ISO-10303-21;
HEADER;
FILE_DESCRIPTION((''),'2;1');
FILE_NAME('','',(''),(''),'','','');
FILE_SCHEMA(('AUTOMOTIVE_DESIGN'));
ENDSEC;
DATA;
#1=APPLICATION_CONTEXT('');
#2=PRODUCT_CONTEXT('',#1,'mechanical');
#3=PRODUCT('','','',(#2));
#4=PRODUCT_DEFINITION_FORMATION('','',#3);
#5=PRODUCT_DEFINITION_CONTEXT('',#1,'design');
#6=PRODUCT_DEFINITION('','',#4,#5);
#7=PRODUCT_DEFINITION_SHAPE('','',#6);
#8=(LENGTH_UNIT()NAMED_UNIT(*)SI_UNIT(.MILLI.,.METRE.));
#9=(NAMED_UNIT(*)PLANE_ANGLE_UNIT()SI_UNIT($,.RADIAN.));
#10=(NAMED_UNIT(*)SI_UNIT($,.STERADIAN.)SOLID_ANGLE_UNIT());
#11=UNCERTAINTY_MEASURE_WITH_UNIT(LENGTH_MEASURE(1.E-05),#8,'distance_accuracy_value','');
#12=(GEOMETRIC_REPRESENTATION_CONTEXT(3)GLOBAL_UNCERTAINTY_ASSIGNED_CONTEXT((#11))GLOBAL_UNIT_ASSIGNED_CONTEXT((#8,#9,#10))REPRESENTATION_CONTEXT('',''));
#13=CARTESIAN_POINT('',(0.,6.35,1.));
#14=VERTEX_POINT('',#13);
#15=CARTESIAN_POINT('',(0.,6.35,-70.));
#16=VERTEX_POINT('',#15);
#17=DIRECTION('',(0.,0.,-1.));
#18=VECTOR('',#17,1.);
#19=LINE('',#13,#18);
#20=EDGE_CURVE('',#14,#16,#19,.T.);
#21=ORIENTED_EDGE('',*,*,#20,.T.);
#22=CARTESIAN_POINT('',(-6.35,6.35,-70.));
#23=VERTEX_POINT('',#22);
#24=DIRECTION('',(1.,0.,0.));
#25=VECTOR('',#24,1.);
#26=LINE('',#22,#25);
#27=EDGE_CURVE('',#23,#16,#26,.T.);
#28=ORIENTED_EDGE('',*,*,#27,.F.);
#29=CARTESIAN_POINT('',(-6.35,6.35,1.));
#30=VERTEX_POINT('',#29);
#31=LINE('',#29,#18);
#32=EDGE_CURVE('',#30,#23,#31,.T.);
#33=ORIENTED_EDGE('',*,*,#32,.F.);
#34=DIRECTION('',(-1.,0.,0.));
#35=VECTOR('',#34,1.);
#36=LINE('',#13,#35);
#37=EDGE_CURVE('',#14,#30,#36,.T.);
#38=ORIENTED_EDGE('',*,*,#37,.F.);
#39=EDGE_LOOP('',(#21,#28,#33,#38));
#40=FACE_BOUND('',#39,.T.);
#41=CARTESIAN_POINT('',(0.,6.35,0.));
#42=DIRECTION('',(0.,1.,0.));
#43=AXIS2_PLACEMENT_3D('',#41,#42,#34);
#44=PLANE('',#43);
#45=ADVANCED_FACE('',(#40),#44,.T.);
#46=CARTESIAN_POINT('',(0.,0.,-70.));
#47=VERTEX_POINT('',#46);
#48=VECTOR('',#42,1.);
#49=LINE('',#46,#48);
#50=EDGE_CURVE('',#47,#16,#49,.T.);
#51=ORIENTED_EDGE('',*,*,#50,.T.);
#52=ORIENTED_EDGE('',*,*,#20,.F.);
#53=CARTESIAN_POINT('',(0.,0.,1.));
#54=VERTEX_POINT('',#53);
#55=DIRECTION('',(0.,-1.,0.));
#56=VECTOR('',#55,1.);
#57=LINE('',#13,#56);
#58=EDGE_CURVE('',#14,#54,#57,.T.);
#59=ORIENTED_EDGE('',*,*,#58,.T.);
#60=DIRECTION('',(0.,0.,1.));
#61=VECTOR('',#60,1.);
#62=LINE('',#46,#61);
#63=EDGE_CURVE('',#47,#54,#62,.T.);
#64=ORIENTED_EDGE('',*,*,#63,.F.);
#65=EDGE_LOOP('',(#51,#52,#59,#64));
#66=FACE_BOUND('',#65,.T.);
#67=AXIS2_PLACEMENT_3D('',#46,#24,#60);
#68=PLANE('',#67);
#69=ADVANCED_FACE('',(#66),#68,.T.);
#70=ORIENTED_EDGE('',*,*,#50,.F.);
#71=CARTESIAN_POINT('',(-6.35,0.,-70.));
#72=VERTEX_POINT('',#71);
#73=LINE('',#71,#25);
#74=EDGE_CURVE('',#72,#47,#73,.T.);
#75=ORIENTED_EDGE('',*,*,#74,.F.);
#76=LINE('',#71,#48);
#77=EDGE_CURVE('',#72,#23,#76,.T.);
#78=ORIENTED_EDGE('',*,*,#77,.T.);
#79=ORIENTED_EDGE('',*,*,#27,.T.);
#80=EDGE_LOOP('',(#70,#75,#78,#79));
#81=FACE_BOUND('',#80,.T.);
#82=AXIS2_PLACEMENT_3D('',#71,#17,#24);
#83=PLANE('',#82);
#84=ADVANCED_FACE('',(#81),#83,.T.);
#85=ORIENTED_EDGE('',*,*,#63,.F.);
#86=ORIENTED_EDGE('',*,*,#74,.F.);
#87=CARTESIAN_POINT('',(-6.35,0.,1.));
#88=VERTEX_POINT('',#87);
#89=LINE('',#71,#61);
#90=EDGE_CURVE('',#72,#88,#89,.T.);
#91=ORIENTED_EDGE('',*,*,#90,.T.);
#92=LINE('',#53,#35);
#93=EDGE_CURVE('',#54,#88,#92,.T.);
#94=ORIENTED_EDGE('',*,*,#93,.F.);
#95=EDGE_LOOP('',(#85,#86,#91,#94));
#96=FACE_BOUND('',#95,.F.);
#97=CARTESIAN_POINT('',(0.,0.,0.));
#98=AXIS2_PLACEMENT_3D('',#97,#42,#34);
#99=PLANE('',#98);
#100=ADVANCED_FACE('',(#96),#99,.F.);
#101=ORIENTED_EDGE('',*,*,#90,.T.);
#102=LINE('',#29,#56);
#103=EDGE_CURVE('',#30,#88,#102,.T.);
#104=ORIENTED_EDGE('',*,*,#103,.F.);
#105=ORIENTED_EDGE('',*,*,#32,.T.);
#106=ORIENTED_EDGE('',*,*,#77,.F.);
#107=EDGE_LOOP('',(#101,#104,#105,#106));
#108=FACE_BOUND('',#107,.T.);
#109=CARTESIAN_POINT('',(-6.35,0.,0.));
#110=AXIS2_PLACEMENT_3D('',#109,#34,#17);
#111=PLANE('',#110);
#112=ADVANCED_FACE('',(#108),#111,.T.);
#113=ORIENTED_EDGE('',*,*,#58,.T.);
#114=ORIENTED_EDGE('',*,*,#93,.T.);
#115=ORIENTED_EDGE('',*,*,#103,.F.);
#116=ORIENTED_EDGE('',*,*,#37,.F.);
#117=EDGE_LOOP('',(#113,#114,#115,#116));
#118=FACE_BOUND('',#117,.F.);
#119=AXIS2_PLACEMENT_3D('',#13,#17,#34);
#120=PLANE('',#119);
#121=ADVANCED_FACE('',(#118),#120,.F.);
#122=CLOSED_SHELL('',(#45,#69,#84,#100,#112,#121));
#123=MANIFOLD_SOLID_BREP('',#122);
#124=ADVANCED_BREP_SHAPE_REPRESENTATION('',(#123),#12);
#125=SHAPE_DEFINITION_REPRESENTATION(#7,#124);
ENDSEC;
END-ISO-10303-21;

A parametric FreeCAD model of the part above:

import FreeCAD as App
import Part
import Sketcher

V = App.Vector


def add_polygon(sketch, points):
    """Adds a closed chain of lines whose ends are joined by coincident constraints."""
    first, n = sketch.GeometryCount, len(points)
    for a, b in zip(points, points[1:] + points[:1]):
        sketch.addGeometry(Part.LineSegment(App.Vector(*a, 0), App.Vector(*b, 0)), False)
    for i in range(n):
        sketch.addConstraint(Sketcher.Constraint("Coincident", first + i, 2, first + (i + 1) % n, 1))

doc = App.newDocument("Part")
body = doc.addObject("PartDesign::Body", "Body")

sketch1 = doc.addObject("Sketcher::SketchObject", "Sketch")
body.addObject(sketch1)
sketch1.AttachmentSupport = (doc.XZ_Plane, [""])
sketch1.MapMode = "FlatFace"
add_polygon(sketch1, [(-6, 0), (0, 0), (0, -70), (-6, -70)])
sketch1.addConstraint(Sketcher.Constraint("Horizontal", 0))
sketch1.addConstraint(Sketcher.Constraint("Vertical", 1))
sketch1.addConstraint(Sketcher.Constraint("Horizontal", 2))
sketch1.addConstraint(Sketcher.Constraint("Vertical", 3))
sketch1.addConstraint(Sketcher.Constraint("Coincident", 0, 2, -1, 1))
sketch1.addConstraint(Sketcher.Constraint("DistanceY", 1, 2, 1, 1, 70.0))
sketch1.addConstraint(Sketcher.Constraint("DistanceX", 0, 1, 0, 2, 6.35))
pad1 = doc.addObject("PartDesign::Pad", "Pad")
body.addObject(pad1)
pad1.Profile = sketch1
pad1.Length = 6.35
pad1.Reversed = True

sketch2 = doc.addObject("Sketcher::SketchObject", "Sketch001")
body.addObject(sketch2)
sketch2.AttachmentSupport = (doc.XZ_Plane, [""])
sketch2.MapMode = "FlatFace"
sketch2.AttachmentOffset = App.Placement(V(0, 0, -6.35), App.Rotation())
add_polygon(sketch2, [(0, 1), (0, 0), (-6.3, 0), (-6.3, 1)])
sketch2.addConstraint(Sketcher.Constraint("Vertical", 0))
sketch2.addConstraint(Sketcher.Constraint("Horizontal", 1))
sketch2.addConstraint(Sketcher.Constraint("Vertical", 2))
sketch2.addConstraint(Sketcher.Constraint("Horizontal", 3))
sketch2.addConstraint(Sketcher.Constraint("Coincident", 0, 2, -1, 1))
sketch2.addConstraint(Sketcher.Constraint("DistanceY", 0, 2, 0, 1, 1.0))
sketch2.addConstraint(Sketcher.Constraint("DistanceX", 1, 2, 1, 1, 6.35))
pad2 = doc.addObject("PartDesign::Pad", "Pad001")
body.addObject(pad2)
pad2.Profile = sketch2
pad2.Length = 6.35

doc.recompute()
